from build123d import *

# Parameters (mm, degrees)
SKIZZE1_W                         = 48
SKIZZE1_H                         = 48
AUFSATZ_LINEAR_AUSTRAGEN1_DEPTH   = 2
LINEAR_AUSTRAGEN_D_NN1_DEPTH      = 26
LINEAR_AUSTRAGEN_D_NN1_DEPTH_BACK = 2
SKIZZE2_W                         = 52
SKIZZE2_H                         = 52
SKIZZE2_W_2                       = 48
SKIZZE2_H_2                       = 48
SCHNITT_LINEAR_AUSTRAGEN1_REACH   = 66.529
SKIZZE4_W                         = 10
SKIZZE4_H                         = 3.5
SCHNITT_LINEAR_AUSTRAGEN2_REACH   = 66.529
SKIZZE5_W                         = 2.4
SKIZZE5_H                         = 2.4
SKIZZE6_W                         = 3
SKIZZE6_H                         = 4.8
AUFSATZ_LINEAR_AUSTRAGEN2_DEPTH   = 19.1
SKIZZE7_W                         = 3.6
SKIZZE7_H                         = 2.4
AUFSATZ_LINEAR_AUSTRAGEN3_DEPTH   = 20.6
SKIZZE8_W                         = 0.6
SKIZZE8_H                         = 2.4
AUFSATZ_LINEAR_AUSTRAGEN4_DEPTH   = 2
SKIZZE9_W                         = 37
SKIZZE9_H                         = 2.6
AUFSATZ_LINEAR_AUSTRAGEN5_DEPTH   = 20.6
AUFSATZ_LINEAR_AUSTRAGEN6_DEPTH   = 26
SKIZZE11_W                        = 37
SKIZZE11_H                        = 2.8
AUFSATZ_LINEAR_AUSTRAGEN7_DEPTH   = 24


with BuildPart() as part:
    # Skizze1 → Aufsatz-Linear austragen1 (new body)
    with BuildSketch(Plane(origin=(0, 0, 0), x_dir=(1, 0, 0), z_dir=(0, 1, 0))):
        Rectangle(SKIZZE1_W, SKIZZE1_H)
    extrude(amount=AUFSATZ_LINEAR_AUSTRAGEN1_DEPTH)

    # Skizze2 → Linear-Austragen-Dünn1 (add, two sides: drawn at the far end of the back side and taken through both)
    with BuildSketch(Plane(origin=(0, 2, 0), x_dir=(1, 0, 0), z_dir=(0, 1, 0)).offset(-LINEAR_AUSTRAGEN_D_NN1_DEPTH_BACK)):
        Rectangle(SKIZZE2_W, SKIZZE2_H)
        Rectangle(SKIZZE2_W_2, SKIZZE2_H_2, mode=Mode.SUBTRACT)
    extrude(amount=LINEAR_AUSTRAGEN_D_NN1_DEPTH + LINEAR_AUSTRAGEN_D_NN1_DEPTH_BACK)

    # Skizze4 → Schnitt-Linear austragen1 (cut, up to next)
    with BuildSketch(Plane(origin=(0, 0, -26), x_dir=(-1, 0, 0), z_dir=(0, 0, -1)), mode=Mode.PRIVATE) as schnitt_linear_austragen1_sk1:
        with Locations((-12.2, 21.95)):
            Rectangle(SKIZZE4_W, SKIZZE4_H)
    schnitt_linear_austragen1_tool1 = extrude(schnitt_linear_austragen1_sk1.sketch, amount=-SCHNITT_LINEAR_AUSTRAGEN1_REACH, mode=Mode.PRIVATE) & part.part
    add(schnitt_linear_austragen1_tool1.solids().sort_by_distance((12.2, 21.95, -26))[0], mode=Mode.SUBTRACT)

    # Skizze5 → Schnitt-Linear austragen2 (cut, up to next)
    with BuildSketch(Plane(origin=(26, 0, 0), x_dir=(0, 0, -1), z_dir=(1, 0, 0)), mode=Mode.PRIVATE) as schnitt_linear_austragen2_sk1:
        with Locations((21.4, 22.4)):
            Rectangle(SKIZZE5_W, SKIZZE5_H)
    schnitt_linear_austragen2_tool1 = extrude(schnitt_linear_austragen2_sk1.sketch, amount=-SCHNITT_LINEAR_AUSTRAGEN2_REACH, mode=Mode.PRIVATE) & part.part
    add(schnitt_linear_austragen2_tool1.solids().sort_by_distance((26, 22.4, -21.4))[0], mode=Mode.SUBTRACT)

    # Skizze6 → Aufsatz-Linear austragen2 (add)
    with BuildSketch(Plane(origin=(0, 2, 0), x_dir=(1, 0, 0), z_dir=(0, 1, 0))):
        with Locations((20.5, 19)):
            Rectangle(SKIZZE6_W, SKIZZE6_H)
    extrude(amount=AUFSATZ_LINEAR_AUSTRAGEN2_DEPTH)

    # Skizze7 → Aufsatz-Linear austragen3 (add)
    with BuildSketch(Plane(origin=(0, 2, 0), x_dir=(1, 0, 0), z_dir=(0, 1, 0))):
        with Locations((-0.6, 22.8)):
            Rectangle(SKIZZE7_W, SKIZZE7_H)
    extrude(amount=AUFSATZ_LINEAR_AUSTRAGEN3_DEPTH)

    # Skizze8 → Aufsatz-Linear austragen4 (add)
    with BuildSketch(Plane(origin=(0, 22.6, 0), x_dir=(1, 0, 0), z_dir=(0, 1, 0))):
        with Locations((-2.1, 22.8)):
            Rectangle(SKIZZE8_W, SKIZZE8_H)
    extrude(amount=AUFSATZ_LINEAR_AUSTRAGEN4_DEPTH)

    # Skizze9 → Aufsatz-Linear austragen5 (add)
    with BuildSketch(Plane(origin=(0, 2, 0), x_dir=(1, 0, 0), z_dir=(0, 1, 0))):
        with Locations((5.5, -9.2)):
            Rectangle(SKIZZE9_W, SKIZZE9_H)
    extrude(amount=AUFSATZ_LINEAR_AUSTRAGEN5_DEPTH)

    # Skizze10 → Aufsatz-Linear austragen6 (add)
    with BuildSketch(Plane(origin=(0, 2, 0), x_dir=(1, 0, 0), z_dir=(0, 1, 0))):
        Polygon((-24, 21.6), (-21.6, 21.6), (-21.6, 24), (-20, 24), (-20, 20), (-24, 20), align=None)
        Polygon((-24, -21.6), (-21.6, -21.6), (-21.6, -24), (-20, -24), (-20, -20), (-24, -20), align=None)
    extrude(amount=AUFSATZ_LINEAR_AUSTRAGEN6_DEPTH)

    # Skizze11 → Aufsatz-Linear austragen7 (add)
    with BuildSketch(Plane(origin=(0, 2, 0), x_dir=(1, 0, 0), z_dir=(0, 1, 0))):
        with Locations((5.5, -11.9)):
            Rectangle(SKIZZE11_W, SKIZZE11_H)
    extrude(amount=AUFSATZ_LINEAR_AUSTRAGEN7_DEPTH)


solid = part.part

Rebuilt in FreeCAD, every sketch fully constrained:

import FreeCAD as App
import Part
import Sketcher
from FreeCAD import Vector
Q = App.Units.Quantity


def add_polygon(sketch, points):
    """Adds a closed chain of lines whose ends are joined by coincident constraints."""
    first, n = sketch.GeometryCount, len(points)
    for a, b in zip(points, points[1:] + points[:1]):
        sketch.addGeometry(Part.LineSegment(App.Vector(*a, 0), App.Vector(*b, 0)), False)
    for i in range(n):
        sketch.addConstraint(Sketcher.Constraint("Coincident", first + i, 2, first + (i + 1) % n, 1))

doc = App.newDocument("Part")
params = doc.addObject("Spreadsheet::Sheet", "Params")
for row, (alias, value) in enumerate([
    ("sketch1_width", "48 mm"),
    ("pad1_length", "2 mm"),
    ("sketch2_width", "52 mm"),
    ("sketch2_width2", "48 mm"),
    ("pad2_length", "26 mm"),
    ("pad2_length2", "2 mm"),
    ("sketch3_width", "10 mm"),
    ("sketch3_height", "3.5 mm"),
    ("sketch4_width", "2.4 mm"),
    ("sketch5_width", "3 mm"),
    ("sketch5_height", "4.8 mm"),
    ("pad3_length", "19.1 mm"),
    ("sketch6_width", "3.6 mm"),
    ("sketch6_height", "2.4 mm"),
    ("pad4_length", "20.6 mm"),
    ("sketch7_width", "0.6 mm"),
    ("sketch7_height", "2.4 mm"),
    ("pad5_length", "2 mm"),
    ("sketch8_width", "37 mm"),
    ("sketch8_height", "2.6 mm"),
    ("pad6_length", "20.6 mm"),
    ("sketch9_width", "4 mm"),
    ("sketch9_width2", "2.4 mm"),
    ("pad7_length", "26 mm"),
    ("sketch10_width", "37 mm"),
    ("sketch10_height", "2.8 mm"),
    ("pad8_length", "24 mm"),
], start=1):
    params.set(f"A{row}", alias)
    params.set(f"B{row}", "=" + value)
    params.setAlias(f"B{row}", alias)

body = doc.addObject("PartDesign::Body", "Body")

# Sketch on XZ plane
sketch1 = body.newObject("Sketcher::SketchObject", "Sketch")
sketch1.AttachmentSupport = (doc.getObject("XZ_Plane"), [""])
sketch1.MapMode = "FlatFace"
add_polygon(sketch1, [(-24, -24), (-24, 24), (24, 24), (24, -24)])  # lines 0-3
sketch1.addConstraint(Sketcher.Constraint("Vertical", 0))
sketch1.addConstraint(Sketcher.Constraint("Horizontal", 1))
sketch1.addConstraint(Sketcher.Constraint("Vertical", 2))
sketch1.addConstraint(Sketcher.Constraint("Horizontal", 3))
sketch1.addConstraint(Sketcher.Constraint("Symmetric", 0, 2, 2, 2, -1, 1))
sketch1.addConstraint(Sketcher.Constraint("Equal", 3, 0))
sketch1.addConstraint(Sketcher.Constraint("DistanceX", 1, 1, 1, 2, Q("48 mm")))
sketch1.setExpression("Constraints[10]", "Params.sketch1_width")
pad1 = body.newObject("PartDesign::Pad", "Pad")
pad1.Profile = sketch1
pad1.setExpression("Length", "Params.pad1_length")
pad1.Reversed = True

# Sketch on XZ plane
sketch2 = body.newObject("Sketcher::SketchObject", "Sketch001")
sketch2.AttachmentSupport = (doc.getObject("XZ_Plane"), [""])
sketch2.MapMode = "FlatFace"
sketch2.AttachmentOffset = App.Placement(Vector(0, 0, -2), App.Rotation())
add_polygon(sketch2, [(-26, -26), (-26, 26), (26, 26), (26, -26)])  # lines 0-3
add_polygon(sketch2, [(24, 24), (-24, 24), (-24, -24), (24, -24)])  # lines 4-7
sketch2.addConstraint(Sketcher.Constraint("Vertical", 0))
sketch2.addConstraint(Sketcher.Constraint("Horizontal", 1))
sketch2.addConstraint(Sketcher.Constraint("Vertical", 2))
sketch2.addConstraint(Sketcher.Constraint("Horizontal", 3))
sketch2.addConstraint(Sketcher.Constraint("Horizontal", 4))
sketch2.addConstraint(Sketcher.Constraint("Vertical", 5))
sketch2.addConstraint(Sketcher.Constraint("Horizontal", 6))
sketch2.addConstraint(Sketcher.Constraint("Vertical", 7))
sketch2.addConstraint(Sketcher.Constraint("Symmetric", 0, 2, 2, 2, -1, 1))
sketch2.addConstraint(Sketcher.Constraint("Symmetric", 4, 2, 6, 2, -1, 1))
sketch2.addConstraint(Sketcher.Constraint("Equal", 3, 0))
sketch2.addConstraint(Sketcher.Constraint("Equal", 6, 5))
sketch2.addConstraint(Sketcher.Constraint("DistanceX", 1, 1, 1, 2, Q("52 mm")))
sketch2.addConstraint(Sketcher.Constraint("DistanceX", 4, 2, 4, 1, Q("48 mm")))
sketch2.setExpression("Constraints[20]", "Params.sketch2_width")
sketch2.setExpression("Constraints[21]", "Params.sketch2_width2")
pad2 = body.newObject("PartDesign::Pad", "Pad001")
pad2.Profile = sketch2
pad2.Type = "TwoLengths"
pad2.setExpression("Length", "Params.pad2_length")
pad2.setExpression("Length2", "Params.pad2_length2")
pad2.Reversed = True

# Sketch on XY plane
sketch3 = body.newObject("Sketcher::SketchObject", "Sketch002")
sketch3.AttachmentSupport = (doc.getObject("XY_Plane"), [""])
sketch3.MapMode = "FlatFace"
sketch3.AttachmentOffset = App.Placement(Vector(0, 0, -26), App.Rotation())
add_polygon(sketch3, [(17.2, 23.7), (17.2, 20.2), (7.2, 20.2), (7.2, 23.7)])  # lines 0-3
sketch3.addConstraint(Sketcher.Constraint("Vertical", 0))
sketch3.addConstraint(Sketcher.Constraint("Horizontal", 1))
sketch3.addConstraint(Sketcher.Constraint("Vertical", 2))
sketch3.addConstraint(Sketcher.Constraint("Horizontal", 3))
sketch3.addConstraint(Sketcher.Constraint("DistanceX", 1, 2, 1, 1, Q("10 mm")))
sketch3.addConstraint(Sketcher.Constraint("DistanceY", 0, 2, 0, 1, Q("3.5 mm")))
sketch3.addConstraint(Sketcher.Constraint("DistanceX", -1, 1, 0, 2, Q("17.2 mm")))
sketch3.addConstraint(Sketcher.Constraint("DistanceY", -1, 1, 0, 2, Q("20.2 mm")))
sketch3.setExpression("Constraints[8]", "Params.sketch3_width")
sketch3.setExpression("Constraints[9]", "Params.sketch3_height")
pocket1 = body.newObject("PartDesign::Pocket", "Pocket")
pocket1.Profile = sketch3
pocket1.Type = "UpToFirst"
pocket1.Reversed = True

# Sketch on YZ plane
sketch4 = body.newObject("Sketcher::SketchObject", "Sketch003")
sketch4.AttachmentSupport = (doc.getObject("YZ_Plane"), [""])
sketch4.MapMode = "FlatFace"
sketch4.AttachmentOffset = App.Placement(Vector(0, 0, 26), App.Rotation())
add_polygon(sketch4, [(23.6, -20.2), (21.2, -20.2), (21.2, -22.6), (23.6, -22.6)])  # lines 0-3
sketch4.addConstraint(Sketcher.Constraint("Horizontal", 0))
sketch4.addConstraint(Sketcher.Constraint("Vertical", 1))
sketch4.addConstraint(Sketcher.Constraint("Horizontal", 2))
sketch4.addConstraint(Sketcher.Constraint("Vertical", 3))
sketch4.addConstraint(Sketcher.Constraint("Equal", 2, 1))
sketch4.addConstraint(Sketcher.Constraint("DistanceX", 0, 2, 0, 1, Q("2.4 mm")))
sketch4.addConstraint(Sketcher.Constraint("DistanceX", -1, 1, 0, 2, Q("21.2 mm")))
sketch4.addConstraint(Sketcher.Constraint("DistanceY", 0, 2, -1, 1, Q("20.2 mm")))
sketch4.setExpression("Constraints[9]", "Params.sketch4_width")
pocket2 = body.newObject("PartDesign::Pocket", "Pocket001")
pocket2.Profile = sketch4
pocket2.Type = "UpToFirst"

# Sketch on XZ plane
sketch5 = body.newObject("Sketcher::SketchObject", "Sketch004")
sketch5.AttachmentSupport = (doc.getObject("XZ_Plane"), [""])
sketch5.MapMode = "FlatFace"
sketch5.AttachmentOffset = App.Placement(Vector(0, 0, -2), App.Rotation())
add_polygon(sketch5, [(19, -21.4), (19, -16.6), (22, -16.6), (22, -21.4)])  # lines 0-3
sketch5.addConstraint(Sketcher.Constraint("Vertical", 0))
sketch5.addConstraint(Sketcher.Constraint("Horizontal", 1))
sketch5.addConstraint(Sketcher.Constraint("Vertical", 2))
sketch5.addConstraint(Sketcher.Constraint("Horizontal", 3))
sketch5.addConstraint(Sketcher.Constraint("DistanceX", 1, 1, 1, 2, Q("3 mm")))
sketch5.addConstraint(Sketcher.Constraint("DistanceY", 0, 1, 0, 2, Q("4.8 mm")))
sketch5.addConstraint(Sketcher.Constraint("DistanceX", -1, 1, 0, 2, Q("19 mm")))
sketch5.addConstraint(Sketcher.Constraint("DistanceY", 0, 2, -1, 1, Q("16.6 mm")))
sketch5.setExpression("Constraints[8]", "Params.sketch5_width")
sketch5.setExpression("Constraints[9]", "Params.sketch5_height")
pad3 = body.newObject("PartDesign::Pad", "Pad002")
pad3.Profile = sketch5
pad3.setExpression("Length", "Params.pad3_length")
pad3.Reversed = True

# Sketch on XZ plane
sketch6 = body.newObject("Sketcher::SketchObject", "Sketch005")
sketch6.AttachmentSupport = (doc.getObject("XZ_Plane"), [""])
sketch6.MapMode = "FlatFace"
sketch6.AttachmentOffset = App.Placement(Vector(0, 0, -2), App.Rotation())
add_polygon(sketch6, [(-2.4, -24), (-2.4, -21.6), (1.2, -21.6), (1.2, -24)])  # lines 0-3
sketch6.addConstraint(Sketcher.Constraint("Vertical", 0))
sketch6.addConstraint(Sketcher.Constraint("Horizontal", 1))
sketch6.addConstraint(Sketcher.Constraint("Vertical", 2))
sketch6.addConstraint(Sketcher.Constraint("Horizontal", 3))
sketch6.addConstraint(Sketcher.Constraint("DistanceX", 1, 1, 1, 2, Q("3.6 mm")))
sketch6.addConstraint(Sketcher.Constraint("DistanceY", 0, 1, 0, 2, Q("2.4 mm")))
sketch6.addConstraint(Sketcher.Constraint("DistanceY", 2, 2, -1, 1, Q("24 mm")))
sketch6.addConstraint(Sketcher.Constraint("DistanceX", 0, 2, -1, 1, Q("2.4 mm")))
sketch6.setExpression("Constraints[8]", "Params.sketch6_width")
sketch6.setExpression("Constraints[9]", "Params.sketch6_height")
pad4 = body.newObject("PartDesign::Pad", "Pad003")
pad4.Profile = sketch6
pad4.setExpression("Length", "Params.pad4_length")
pad4.Reversed = True

# Sketch on XZ plane
sketch7 = body.newObject("Sketcher::SketchObject", "Sketch006")
sketch7.AttachmentSupport = (doc.getObject("XZ_Plane"), [""])
sketch7.MapMode = "FlatFace"
sketch7.AttachmentOffset = App.Placement(Vector(0, 0, -22.6), App.Rotation())
add_polygon(sketch7, [(-2.4, -24), (-2.4, -21.6), (-1.8, -21.6), (-1.8, -24)])  # lines 0-3
sketch7.addConstraint(Sketcher.Constraint("Vertical", 0))
sketch7.addConstraint(Sketcher.Constraint("Horizontal", 1))
sketch7.addConstraint(Sketcher.Constraint("Vertical", 2))
sketch7.addConstraint(Sketcher.Constraint("Horizontal", 3))
sketch7.addConstraint(Sketcher.Constraint("DistanceX", 1, 1, 1, 2, Q("0.6 mm")))
sketch7.addConstraint(Sketcher.Constraint("DistanceY", 0, 1, 0, 2, Q("2.4 mm")))
sketch7.addConstraint(Sketcher.Constraint("DistanceY", 2, 2, -1, 1, Q("24 mm")))
sketch7.addConstraint(Sketcher.Constraint("DistanceX", 0, 2, -1, 1, Q("2.4 mm")))
sketch7.setExpression("Constraints[8]", "Params.sketch7_width")
sketch7.setExpression("Constraints[9]", "Params.sketch7_height")
pad5 = body.newObject("PartDesign::Pad", "Pad004")
pad5.Profile = sketch7
pad5.setExpression("Length", "Params.pad5_length")
pad5.Reversed = True

# Sketch on XZ plane
sketch8 = body.newObject("Sketcher::SketchObject", "Sketch007")
sketch8.AttachmentSupport = (doc.getObject("XZ_Plane"), [""])
sketch8.MapMode = "FlatFace"
sketch8.AttachmentOffset = App.Placement(Vector(0, 0, -2), App.Rotation())
add_polygon(sketch8, [(-13, 7.9), (-13, 10.5), (24, 10.5), (24, 7.9)])  # lines 0-3
sketch8.addConstraint(Sketcher.Constraint("Vertical", 0))
sketch8.addConstraint(Sketcher.Constraint("Horizontal", 1))
sketch8.addConstraint(Sketcher.Constraint("Vertical", 2))
sketch8.addConstraint(Sketcher.Constraint("Horizontal", 3))
sketch8.addConstraint(Sketcher.Constraint("DistanceX", 1, 1, 1, 2, Q("37 mm")))
sketch8.addConstraint(Sketcher.Constraint("DistanceY", 0, 1, 0, 2, Q("2.6 mm")))
sketch8.addConstraint(Sketcher.Constraint("DistanceX", 0, 2, -1, 1, Q("13 mm")))
sketch8.addConstraint(Sketcher.Constraint("DistanceY", -1, 1, 0, 2, Q("10.5 mm")))
sketch8.setExpression("Constraints[8]", "Params.sketch8_width")
sketch8.setExpression("Constraints[9]", "Params.sketch8_height")
pad6 = body.newObject("PartDesign::Pad", "Pad005")
pad6.Profile = sketch8
pad6.setExpression("Length", "Params.pad6_length")
pad6.Reversed = True

# Sketch on XZ plane
sketch9 = body.newObject("Sketcher::SketchObject", "Sketch008")
sketch9.AttachmentSupport = (doc.getObject("XZ_Plane"), [""])
sketch9.MapMode = "FlatFace"
sketch9.AttachmentOffset = App.Placement(Vector(0, 0, -2), App.Rotation())
add_polygon(sketch9, [(-21.6, -21.6), (-24, -21.6), (-24, -20), (-20, -20), (-20, -24), (-21.6, -24)])  # lines 0-5
add_polygon(sketch9, [(-24, 21.6), (-21.6, 21.6), (-21.6, 24), (-20, 24), (-20, 20), (-24, 20)])  # lines 6-11
sketch9.addConstraint(Sketcher.Constraint("Horizontal", 0))
sketch9.addConstraint(Sketcher.Constraint("Vertical", 1))
sketch9.addConstraint(Sketcher.Constraint("Horizontal", 2))
sketch9.addConstraint(Sketcher.Constraint("Vertical", 3))
sketch9.addConstraint(Sketcher.Constraint("Horizontal", 4))
sketch9.addConstraint(Sketcher.Constraint("Vertical", 5))
sketch9.addConstraint(Sketcher.Constraint("Horizontal", 6))
sketch9.addConstraint(Sketcher.Constraint("Vertical", 7))
sketch9.addConstraint(Sketcher.Constraint("Horizontal", 8))
sketch9.addConstraint(Sketcher.Constraint("Vertical", 9))
sketch9.addConstraint(Sketcher.Constraint("Horizontal", 10))
sketch9.addConstraint(Sketcher.Constraint("Vertical", 11))
sketch9.addConstraint(Sketcher.Constraint("Symmetric", 5, 2, 6, 2, -1))
sketch9.addConstraint(Sketcher.Constraint("Symmetric", 3, 2, 8, 2, -1))
sketch9.addConstraint(Sketcher.Constraint("Symmetric", 1, 2, 10, 2, -1))
sketch9.addConstraint(Sketcher.Constraint("Equal", 8, 1))
sketch9.addConstraint(Sketcher.Constraint("Equal", 10, 3))
sketch9.addConstraint(Sketcher.Constraint("DistanceX", 2, 1, 2, 2, Q("4 mm")))
sketch9.addConstraint(Sketcher.Constraint("DistanceX", 0, 2, 0, 1, Q("2.4 mm")))
sketch9.addConstraint(Sketcher.Constraint("DistanceX", 0, 2, -1, 1, Q("24 mm")))
sketch9.addConstraint(Sketcher.Constraint("DistanceY", 1, 2, -1, 1, Q("20 mm")))
sketch9.setExpression("Constraints[29]", "Params.sketch9_width")
sketch9.setExpression("Constraints[30]", "Params.sketch9_width2")
pad7 = body.newObject("PartDesign::Pad", "Pad006")
pad7.Profile = sketch9
pad7.setExpression("Length", "Params.pad7_length")
pad7.Reversed = True

# Sketch on XZ plane
sketch10 = body.newObject("Sketcher::SketchObject", "Sketch009")
sketch10.AttachmentSupport = (doc.getObject("XZ_Plane"), [""])
sketch10.MapMode = "FlatFace"
sketch10.AttachmentOffset = App.Placement(Vector(0, 0, -2), App.Rotation())
add_polygon(sketch10, [(-13, 10.5), (-13, 13.3), (24, 13.3), (24, 10.5)])  # lines 0-3
sketch10.addConstraint(Sketcher.Constraint("Vertical", 0))
sketch10.addConstraint(Sketcher.Constraint("Horizontal", 1))
sketch10.addConstraint(Sketcher.Constraint("Vertical", 2))
sketch10.addConstraint(Sketcher.Constraint("Horizontal", 3))
sketch10.addConstraint(Sketcher.Constraint("DistanceX", 1, 1, 1, 2, Q("37 mm")))
sketch10.addConstraint(Sketcher.Constraint("DistanceY", 0, 1, 0, 2, Q("2.8 mm")))
sketch10.addConstraint(Sketcher.Constraint("DistanceX", 0, 2, -1, 1, Q("13 mm")))
sketch10.addConstraint(Sketcher.Constraint("DistanceY", -1, 1, 0, 2, Q("13.3 mm")))
sketch10.setExpression("Constraints[8]", "Params.sketch10_width")
sketch10.setExpression("Constraints[9]", "Params.sketch10_height")
pad8 = body.newObject("PartDesign::Pad", "Pad007")
pad8.Profile = sketch10
pad8.setExpression("Length", "Params.pad8_length")
pad8.Reversed = True

doc.recompute()
